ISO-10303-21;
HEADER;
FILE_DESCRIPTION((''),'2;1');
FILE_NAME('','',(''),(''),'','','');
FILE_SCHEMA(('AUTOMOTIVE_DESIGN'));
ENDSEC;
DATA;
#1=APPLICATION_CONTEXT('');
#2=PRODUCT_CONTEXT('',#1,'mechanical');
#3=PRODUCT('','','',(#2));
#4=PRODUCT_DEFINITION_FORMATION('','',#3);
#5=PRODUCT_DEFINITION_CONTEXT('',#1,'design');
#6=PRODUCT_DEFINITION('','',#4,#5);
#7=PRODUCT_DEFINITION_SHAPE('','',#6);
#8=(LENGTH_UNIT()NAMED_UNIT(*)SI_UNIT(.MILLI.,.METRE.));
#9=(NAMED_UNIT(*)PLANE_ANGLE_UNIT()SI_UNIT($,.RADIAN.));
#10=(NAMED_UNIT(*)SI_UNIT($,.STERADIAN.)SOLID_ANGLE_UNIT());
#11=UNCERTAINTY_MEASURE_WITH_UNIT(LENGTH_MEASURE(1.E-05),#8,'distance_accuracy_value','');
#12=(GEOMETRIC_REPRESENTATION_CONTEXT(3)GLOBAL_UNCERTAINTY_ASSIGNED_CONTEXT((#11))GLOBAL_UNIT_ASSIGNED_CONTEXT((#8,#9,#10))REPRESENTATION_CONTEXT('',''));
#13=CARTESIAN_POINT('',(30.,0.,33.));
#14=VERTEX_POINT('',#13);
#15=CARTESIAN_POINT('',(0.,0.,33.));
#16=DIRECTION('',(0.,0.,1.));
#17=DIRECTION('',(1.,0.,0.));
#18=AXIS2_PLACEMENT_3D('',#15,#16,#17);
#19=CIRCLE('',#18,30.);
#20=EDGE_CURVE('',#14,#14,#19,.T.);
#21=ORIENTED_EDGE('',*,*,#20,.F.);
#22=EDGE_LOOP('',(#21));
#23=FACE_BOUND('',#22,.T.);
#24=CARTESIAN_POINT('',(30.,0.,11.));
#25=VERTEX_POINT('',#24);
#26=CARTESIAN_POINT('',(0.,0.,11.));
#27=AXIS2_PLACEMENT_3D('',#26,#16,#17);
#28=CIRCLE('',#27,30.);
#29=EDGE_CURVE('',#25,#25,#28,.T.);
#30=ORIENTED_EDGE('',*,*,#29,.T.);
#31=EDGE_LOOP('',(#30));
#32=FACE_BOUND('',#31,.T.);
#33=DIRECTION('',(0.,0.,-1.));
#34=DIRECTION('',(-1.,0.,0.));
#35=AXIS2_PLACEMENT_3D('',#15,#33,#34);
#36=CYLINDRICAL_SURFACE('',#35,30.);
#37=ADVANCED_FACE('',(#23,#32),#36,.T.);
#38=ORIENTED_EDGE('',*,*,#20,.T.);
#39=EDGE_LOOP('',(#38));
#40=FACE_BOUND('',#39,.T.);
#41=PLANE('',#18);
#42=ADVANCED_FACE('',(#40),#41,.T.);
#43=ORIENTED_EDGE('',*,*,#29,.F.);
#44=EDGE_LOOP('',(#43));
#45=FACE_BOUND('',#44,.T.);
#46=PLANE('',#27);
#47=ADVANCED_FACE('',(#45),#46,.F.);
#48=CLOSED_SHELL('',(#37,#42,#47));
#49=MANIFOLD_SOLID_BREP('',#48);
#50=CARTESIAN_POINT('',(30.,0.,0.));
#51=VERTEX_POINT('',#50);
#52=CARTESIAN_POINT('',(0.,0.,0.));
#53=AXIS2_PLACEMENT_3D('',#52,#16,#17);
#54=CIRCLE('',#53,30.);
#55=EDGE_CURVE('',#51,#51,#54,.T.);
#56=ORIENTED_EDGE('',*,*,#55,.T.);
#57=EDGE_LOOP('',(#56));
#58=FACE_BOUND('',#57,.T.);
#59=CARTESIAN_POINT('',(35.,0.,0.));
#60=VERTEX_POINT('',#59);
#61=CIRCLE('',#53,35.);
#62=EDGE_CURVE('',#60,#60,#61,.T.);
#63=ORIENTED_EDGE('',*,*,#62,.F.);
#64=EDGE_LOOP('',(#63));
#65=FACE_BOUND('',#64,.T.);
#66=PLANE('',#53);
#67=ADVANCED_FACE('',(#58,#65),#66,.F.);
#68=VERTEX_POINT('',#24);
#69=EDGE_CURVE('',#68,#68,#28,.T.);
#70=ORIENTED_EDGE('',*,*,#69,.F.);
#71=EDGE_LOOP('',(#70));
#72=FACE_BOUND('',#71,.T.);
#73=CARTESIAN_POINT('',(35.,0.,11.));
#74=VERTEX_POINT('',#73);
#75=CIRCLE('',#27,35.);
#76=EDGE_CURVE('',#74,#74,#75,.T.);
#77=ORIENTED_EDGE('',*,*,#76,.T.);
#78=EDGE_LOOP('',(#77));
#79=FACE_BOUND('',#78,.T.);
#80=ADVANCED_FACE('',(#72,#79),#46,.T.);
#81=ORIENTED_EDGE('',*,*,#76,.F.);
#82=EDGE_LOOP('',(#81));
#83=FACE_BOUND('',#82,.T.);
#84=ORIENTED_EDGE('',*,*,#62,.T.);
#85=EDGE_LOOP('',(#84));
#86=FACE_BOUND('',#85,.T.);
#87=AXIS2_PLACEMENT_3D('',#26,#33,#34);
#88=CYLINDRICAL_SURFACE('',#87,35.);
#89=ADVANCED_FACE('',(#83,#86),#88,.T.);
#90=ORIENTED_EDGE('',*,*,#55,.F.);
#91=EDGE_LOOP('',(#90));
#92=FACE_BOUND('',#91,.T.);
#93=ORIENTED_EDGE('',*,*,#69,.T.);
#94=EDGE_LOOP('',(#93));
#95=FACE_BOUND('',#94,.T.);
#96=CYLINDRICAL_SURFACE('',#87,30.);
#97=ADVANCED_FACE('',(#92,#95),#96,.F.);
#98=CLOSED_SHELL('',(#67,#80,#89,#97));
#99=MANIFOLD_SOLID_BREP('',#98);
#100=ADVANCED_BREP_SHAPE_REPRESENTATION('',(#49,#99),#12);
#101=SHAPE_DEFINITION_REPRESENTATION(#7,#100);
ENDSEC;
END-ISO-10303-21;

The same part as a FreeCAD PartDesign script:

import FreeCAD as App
import Part
import Sketcher

V = App.Vector

doc = App.newDocument("Part")
params = doc.addObject("Spreadsheet::Sheet", "Params")
for row, (alias, value) in enumerate([
    ("sketch1_diameter", "70 mm"),
    ("sketch1_diameter2", "60 mm"),
    ("pad1_length", "11 mm"),
    ("sketch2_diameter", "60 mm"),
    ("pad2_length", "22 mm"),
], start=1):
    params.set(f"A{row}", alias)
    params.set(f"B{row}", "=" + value)
    params.setAlias(f"B{row}", alias)

body = doc.addObject("PartDesign::Body", "Body")

sketch1 = body.newObject("Sketcher::SketchObject", "Sketch")
sketch1.AttachmentSupport = (doc.getObject("XY_Plane"), [""])
sketch1.MapMode = "FlatFace"
sketch1.addGeometry([
    Part.Circle(V(0, 0, 0), V(0, 0, 1), 35),
    Part.Circle(V(0, 0, 0), V(0, 0, 1), 30),
], False)
sketch1.addConstraint([
    Sketcher.Constraint("Coincident", 0, 3, -1, 1),
    Sketcher.Constraint("Coincident", 1, 3, -1, 1),
    Sketcher.Constraint("Diameter", 0, 70.0),
    Sketcher.Constraint("Diameter", 1, 60.0),
])
sketch1.setExpression("Constraints[2]", "Params.sketch1_diameter")
sketch1.setExpression("Constraints[3]", "Params.sketch1_diameter2")
pad1 = body.newObject("PartDesign::Pad", "Pad")
pad1.Profile = sketch1
pad1.setExpression("Length", "Params.pad1_length")
body2 = doc.addObject("PartDesign::Body", "Body001")

sketch2 = body2.newObject("Sketcher::SketchObject", "Sketch001")
sketch2.AttachmentSupport = (doc.getObject("XY_Plane001"), [""])
sketch2.MapMode = "FlatFace"
sketch2.AttachmentOffset = App.Placement(V(0, 0, 11), App.Rotation())
sketch2.addGeometry(Part.Circle(V(0, 0, 0), V(0, 0, 1), 30), False)
sketch2.addConstraint([
    Sketcher.Constraint("Coincident", 0, 3, -1, 1),
    Sketcher.Constraint("Diameter", 0, 60.0),
])
sketch2.setExpression("Constraints[1]", "Params.sketch2_diameter")
pad2 = body2.newObject("PartDesign::Pad", "Pad001")
pad2.Profile = sketch2
pad2.setExpression("Length", "Params.pad2_length")

doc.recompute()
